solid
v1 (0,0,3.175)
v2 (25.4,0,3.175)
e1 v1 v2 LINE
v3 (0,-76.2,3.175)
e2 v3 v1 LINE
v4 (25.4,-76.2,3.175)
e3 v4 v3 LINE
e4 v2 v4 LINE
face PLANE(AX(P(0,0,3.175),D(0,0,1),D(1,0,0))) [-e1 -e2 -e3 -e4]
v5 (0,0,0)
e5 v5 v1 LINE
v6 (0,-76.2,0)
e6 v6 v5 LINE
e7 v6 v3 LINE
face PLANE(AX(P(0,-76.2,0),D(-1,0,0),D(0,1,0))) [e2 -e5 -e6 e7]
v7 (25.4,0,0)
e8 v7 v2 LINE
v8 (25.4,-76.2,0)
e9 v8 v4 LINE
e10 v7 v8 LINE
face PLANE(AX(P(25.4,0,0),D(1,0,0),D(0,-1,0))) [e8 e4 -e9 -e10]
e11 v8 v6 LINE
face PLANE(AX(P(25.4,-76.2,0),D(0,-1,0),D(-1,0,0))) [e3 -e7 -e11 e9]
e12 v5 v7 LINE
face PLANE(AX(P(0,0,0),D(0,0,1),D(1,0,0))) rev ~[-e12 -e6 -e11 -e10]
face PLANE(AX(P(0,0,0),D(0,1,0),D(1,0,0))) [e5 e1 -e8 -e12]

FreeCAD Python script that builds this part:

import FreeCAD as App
import Part
import Sketcher
from FreeCAD import Vector
Q = App.Units.Quantity

doc = App.newDocument("Part")
params = doc.addObject("Spreadsheet::Sheet", "Params")
for row, (alias, value) in enumerate([
    ("sketch1_width", "1 in"),
    ("sketch1_height", "3 in"),
    ("pad1_length", "0.125 in"),
], start=1):
    params.set(f"A{row}", alias)
    params.set(f"B{row}", "=" + value)
    params.setAlias(f"B{row}", alias)

body = doc.addObject("PartDesign::Body", "Body")

sketch1 = body.newObject("Sketcher::SketchObject", "Sketch")
sketch1.AttachmentSupport = (doc.getObject("XY_Plane"), [""])
sketch1.MapMode = "FlatFace"
sketch1.addGeometry([
    Part.LineSegment(Vector(25, 0, 0), Vector(0, 0, 0)),
    Part.LineSegment(Vector(0, 0, 0), Vector(0, -76, 0)),
    Part.LineSegment(Vector(0, -76, 0), Vector(25, -76, 0)),
    Part.LineSegment(Vector(25, -76, 0), Vector(25, 0, 0)),
], False)
sketch1.addConstraint([
    Sketcher.Constraint("Coincident", 0, 2, 1, 1),
    Sketcher.Constraint("Coincident", 1, 2, 2, 1),
    Sketcher.Constraint("Coincident", 2, 2, 3, 1),
    Sketcher.Constraint("Coincident", 3, 2, 0, 1),
    Sketcher.Constraint("Horizontal", 0),
    Sketcher.Constraint("Vertical", 1),
    Sketcher.Constraint("Horizontal", 2),
    Sketcher.Constraint("Vertical", 3),
    Sketcher.Constraint("Coincident", 0, 2, -1, 1),
    Sketcher.Constraint("DistanceX", 0, 2, 0, 1, Q("1 in")),
    Sketcher.Constraint("DistanceY", 1, 2, 1, 1, Q("3 in")),
])
sketch1.setExpression("Constraints[9]", "Params.sketch1_width")
sketch1.setExpression("Constraints[10]", "Params.sketch1_height")
pad1 = body.newObject("PartDesign::Pad", "Pad")
pad1.Profile = sketch1
pad1.setExpression("Length", "Params.pad1_length")

doc.recompute()
